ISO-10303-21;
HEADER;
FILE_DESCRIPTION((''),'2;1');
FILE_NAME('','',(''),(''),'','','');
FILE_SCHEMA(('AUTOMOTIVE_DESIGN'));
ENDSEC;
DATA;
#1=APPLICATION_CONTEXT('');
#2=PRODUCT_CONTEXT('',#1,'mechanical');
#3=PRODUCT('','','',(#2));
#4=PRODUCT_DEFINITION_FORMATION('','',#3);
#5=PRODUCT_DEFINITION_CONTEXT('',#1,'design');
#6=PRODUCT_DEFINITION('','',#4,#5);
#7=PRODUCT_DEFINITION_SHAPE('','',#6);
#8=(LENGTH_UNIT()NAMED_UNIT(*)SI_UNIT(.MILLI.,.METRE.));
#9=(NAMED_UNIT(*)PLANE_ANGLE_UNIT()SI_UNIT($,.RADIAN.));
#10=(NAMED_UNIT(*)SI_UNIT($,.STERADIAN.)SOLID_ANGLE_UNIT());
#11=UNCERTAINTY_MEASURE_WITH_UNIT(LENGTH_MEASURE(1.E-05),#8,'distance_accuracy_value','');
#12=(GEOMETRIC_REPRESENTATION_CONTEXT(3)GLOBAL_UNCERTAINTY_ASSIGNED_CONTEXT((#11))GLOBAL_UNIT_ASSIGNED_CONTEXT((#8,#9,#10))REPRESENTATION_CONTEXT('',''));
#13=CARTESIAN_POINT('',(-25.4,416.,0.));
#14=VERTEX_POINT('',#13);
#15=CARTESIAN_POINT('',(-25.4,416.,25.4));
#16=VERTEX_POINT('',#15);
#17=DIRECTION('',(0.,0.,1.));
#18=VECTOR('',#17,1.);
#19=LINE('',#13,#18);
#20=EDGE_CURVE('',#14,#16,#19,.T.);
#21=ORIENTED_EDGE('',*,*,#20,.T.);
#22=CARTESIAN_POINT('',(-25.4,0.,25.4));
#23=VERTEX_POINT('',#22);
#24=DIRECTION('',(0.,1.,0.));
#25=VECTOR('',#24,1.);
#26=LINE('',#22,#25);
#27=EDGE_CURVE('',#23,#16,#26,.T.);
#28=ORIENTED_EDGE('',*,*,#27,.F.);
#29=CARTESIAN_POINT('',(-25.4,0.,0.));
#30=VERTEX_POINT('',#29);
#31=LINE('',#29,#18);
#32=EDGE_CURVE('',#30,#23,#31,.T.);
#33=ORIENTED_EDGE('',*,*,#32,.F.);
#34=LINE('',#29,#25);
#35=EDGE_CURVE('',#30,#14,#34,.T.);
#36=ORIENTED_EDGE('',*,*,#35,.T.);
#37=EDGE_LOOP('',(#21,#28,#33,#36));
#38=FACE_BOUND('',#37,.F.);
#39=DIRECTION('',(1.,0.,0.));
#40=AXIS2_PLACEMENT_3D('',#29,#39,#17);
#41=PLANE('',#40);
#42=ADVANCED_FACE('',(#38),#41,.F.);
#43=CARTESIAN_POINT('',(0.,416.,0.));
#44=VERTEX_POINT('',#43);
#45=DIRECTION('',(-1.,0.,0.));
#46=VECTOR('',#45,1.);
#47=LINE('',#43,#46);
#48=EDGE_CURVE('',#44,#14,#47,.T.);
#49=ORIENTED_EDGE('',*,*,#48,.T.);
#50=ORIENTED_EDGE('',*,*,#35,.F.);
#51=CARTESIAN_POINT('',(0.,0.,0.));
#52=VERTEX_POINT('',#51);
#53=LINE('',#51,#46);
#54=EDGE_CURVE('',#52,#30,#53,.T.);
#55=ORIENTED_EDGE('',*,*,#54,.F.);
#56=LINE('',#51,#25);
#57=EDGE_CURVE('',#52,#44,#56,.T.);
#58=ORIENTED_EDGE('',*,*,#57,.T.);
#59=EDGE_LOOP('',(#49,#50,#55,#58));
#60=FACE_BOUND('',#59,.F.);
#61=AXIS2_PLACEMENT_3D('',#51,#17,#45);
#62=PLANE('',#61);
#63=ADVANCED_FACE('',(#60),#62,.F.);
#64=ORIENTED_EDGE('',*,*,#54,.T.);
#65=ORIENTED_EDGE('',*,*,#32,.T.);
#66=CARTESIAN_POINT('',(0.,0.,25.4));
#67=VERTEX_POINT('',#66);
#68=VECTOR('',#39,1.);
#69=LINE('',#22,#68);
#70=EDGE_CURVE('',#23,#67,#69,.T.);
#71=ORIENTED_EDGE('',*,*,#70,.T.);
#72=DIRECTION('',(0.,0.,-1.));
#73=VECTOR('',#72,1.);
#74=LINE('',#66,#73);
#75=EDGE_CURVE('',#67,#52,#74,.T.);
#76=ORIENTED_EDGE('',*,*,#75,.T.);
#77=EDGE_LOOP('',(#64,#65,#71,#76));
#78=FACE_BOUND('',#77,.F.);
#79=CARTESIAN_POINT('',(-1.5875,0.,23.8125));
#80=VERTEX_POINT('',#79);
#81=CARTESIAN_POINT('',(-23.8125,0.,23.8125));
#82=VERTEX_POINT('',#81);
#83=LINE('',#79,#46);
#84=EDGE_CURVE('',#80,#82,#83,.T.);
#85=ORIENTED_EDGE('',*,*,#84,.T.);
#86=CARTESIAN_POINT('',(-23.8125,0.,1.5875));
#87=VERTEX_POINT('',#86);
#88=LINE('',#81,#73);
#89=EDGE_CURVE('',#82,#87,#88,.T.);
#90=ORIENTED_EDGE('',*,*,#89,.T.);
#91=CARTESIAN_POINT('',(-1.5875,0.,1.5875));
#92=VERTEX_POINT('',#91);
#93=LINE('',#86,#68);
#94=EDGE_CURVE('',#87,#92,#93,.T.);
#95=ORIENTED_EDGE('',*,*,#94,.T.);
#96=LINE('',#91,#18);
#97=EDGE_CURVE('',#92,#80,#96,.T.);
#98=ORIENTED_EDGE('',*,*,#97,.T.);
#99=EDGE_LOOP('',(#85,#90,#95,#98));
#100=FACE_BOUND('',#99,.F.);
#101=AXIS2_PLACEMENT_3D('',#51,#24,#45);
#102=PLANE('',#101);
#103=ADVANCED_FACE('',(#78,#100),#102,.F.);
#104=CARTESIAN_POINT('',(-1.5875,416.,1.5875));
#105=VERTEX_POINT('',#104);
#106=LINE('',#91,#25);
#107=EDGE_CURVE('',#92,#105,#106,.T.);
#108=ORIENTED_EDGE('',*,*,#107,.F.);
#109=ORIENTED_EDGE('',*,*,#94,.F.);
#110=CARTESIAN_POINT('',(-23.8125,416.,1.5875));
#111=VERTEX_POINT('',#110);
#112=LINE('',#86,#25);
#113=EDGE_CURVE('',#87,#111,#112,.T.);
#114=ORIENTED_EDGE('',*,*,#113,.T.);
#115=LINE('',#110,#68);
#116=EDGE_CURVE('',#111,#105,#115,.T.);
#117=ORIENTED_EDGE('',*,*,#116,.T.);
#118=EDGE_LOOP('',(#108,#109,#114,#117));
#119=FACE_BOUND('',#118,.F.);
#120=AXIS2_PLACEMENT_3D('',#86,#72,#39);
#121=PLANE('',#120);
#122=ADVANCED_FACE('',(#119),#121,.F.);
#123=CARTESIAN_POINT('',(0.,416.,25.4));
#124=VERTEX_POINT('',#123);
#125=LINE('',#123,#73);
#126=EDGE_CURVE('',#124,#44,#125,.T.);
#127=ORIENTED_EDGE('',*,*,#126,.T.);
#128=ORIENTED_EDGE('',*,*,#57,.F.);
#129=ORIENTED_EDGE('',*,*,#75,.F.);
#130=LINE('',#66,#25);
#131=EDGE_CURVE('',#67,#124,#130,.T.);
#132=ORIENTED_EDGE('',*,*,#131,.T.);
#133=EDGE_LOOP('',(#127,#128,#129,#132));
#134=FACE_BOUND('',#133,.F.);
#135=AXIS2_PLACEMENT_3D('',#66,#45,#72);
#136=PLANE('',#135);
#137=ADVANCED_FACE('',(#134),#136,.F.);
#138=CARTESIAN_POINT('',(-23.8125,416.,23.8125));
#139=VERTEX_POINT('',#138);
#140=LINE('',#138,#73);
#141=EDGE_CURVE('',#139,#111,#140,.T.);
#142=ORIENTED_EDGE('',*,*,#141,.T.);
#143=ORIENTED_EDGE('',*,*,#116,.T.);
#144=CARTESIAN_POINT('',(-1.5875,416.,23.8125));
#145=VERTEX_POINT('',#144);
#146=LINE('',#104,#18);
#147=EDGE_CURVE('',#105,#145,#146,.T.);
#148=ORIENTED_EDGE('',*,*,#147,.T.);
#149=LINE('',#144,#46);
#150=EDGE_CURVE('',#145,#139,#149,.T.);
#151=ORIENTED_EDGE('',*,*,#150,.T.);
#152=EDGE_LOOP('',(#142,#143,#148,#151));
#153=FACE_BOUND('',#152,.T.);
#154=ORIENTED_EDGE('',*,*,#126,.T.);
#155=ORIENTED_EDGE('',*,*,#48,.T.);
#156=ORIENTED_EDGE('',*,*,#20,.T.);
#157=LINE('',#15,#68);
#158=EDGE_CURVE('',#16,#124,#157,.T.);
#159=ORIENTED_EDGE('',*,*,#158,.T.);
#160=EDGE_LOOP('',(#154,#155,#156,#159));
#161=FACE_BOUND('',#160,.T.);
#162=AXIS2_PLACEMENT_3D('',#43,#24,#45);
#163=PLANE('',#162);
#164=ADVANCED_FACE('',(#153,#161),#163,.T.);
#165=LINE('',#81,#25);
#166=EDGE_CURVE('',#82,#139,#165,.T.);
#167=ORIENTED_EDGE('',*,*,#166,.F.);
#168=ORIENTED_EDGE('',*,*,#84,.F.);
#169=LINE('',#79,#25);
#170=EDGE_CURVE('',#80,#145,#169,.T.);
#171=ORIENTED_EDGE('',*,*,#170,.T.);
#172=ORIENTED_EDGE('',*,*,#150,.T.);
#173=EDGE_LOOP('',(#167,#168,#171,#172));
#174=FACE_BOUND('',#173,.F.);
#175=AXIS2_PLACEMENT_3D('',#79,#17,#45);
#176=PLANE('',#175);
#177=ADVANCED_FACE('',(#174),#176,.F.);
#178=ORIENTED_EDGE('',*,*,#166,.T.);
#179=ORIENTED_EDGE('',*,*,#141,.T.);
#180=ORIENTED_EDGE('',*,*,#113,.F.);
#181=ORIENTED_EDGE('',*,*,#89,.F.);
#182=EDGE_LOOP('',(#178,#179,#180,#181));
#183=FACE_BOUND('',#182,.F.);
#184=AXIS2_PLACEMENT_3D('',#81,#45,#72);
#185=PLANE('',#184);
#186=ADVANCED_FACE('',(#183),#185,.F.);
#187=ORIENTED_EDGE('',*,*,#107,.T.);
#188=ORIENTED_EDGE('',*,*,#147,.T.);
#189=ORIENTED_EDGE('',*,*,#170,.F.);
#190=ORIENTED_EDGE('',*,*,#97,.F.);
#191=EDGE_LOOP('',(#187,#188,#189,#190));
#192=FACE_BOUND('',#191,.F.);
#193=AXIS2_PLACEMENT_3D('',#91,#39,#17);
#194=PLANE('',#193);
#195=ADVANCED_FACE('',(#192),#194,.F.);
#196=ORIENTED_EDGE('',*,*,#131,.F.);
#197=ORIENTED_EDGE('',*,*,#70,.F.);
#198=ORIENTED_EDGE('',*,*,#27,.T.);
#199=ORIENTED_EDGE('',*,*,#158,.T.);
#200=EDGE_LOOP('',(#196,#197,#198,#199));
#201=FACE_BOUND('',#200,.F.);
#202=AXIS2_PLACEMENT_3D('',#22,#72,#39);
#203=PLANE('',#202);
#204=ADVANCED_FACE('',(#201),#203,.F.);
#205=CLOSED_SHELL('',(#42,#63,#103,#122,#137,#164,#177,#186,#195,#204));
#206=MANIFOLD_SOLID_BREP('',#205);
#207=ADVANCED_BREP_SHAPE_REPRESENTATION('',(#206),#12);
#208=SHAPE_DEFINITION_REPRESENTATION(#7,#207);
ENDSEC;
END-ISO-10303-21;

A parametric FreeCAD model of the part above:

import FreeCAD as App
import Part
import Sketcher
Q = App.Units.Quantity

doc = App.newDocument("Part")
body = doc.addObject("PartDesign::Body", "Body")

# Sketch on XZ plane
sketch1 = body.newObject("Sketcher::SketchObject", "Sketch")
sketch1.AttachmentSupport = (doc.getObject("XZ_Plane"), [""])
sketch1.MapMode = "FlatFace"
sketch1.addGeometry([
    Part.LineSegment(App.Vector(0, 25, 0), App.Vector(0, 0, 0)),  # 0
    Part.LineSegment(App.Vector(0, 0, 0), App.Vector(-25, 0, 0)),  # 1
    Part.LineSegment(App.Vector(-25, 0, 0), App.Vector(-25, 25, 0)),  # 2
    Part.LineSegment(App.Vector(-25, 25, 0), App.Vector(0, 25, 0)),  # 3
    Part.LineSegment(App.Vector(-24, 24, 0), App.Vector(-24, 2, 0)),  # 4
    Part.LineSegment(App.Vector(-24, 2, 0), App.Vector(-2, 2, 0)),  # 5
    Part.LineSegment(App.Vector(-2, 2, 0), App.Vector(-2, 24, 0)),  # 6
    Part.LineSegment(App.Vector(-2, 24, 0), App.Vector(-24, 24, 0)),  # 7
], False)
sketch1.addConstraint([
    Sketcher.Constraint("Coincident", 0, 2, 1, 1),
    Sketcher.Constraint("Coincident", 1, 2, 2, 1),
    Sketcher.Constraint("Coincident", 2, 2, 3, 1),
    Sketcher.Constraint("Coincident", 3, 2, 0, 1),
    Sketcher.Constraint("Coincident", 4, 2, 5, 1),
    Sketcher.Constraint("Coincident", 5, 2, 6, 1),
    Sketcher.Constraint("Coincident", 6, 2, 7, 1),
    Sketcher.Constraint("Coincident", 7, 2, 4, 1),
    Sketcher.Constraint("Vertical", 0),
    Sketcher.Constraint("Horizontal", 1),
    Sketcher.Constraint("Vertical", 2),
    Sketcher.Constraint("Horizontal", 3),
    Sketcher.Constraint("Vertical", 4),
    Sketcher.Constraint("Horizontal", 5),
    Sketcher.Constraint("Vertical", 6),
    Sketcher.Constraint("Horizontal", 7),
    Sketcher.Constraint("Coincident", 0, 2, -1, 1),
    Sketcher.Constraint("Equal", 3, 0),
    Sketcher.Constraint("Equal", 7, 4),
    Sketcher.Constraint("DistanceX", 1, 2, 1, 1, Q("1 in")),
    Sketcher.Constraint("DistanceX", 5, 1, 5, 2, Q("0.875 in")),
    Sketcher.Constraint("DistanceX", 4, 2, -1, 1, Q("0.9375 in")),
    Sketcher.Constraint("DistanceY", -1, 1, 4, 2, Q("0.0625 in")),
])
pad1 = body.newObject("PartDesign::Pad", "Pad")
pad1.Profile = sketch1
pad1.Length = 416
pad1.Reversed = True

doc.recompute()
